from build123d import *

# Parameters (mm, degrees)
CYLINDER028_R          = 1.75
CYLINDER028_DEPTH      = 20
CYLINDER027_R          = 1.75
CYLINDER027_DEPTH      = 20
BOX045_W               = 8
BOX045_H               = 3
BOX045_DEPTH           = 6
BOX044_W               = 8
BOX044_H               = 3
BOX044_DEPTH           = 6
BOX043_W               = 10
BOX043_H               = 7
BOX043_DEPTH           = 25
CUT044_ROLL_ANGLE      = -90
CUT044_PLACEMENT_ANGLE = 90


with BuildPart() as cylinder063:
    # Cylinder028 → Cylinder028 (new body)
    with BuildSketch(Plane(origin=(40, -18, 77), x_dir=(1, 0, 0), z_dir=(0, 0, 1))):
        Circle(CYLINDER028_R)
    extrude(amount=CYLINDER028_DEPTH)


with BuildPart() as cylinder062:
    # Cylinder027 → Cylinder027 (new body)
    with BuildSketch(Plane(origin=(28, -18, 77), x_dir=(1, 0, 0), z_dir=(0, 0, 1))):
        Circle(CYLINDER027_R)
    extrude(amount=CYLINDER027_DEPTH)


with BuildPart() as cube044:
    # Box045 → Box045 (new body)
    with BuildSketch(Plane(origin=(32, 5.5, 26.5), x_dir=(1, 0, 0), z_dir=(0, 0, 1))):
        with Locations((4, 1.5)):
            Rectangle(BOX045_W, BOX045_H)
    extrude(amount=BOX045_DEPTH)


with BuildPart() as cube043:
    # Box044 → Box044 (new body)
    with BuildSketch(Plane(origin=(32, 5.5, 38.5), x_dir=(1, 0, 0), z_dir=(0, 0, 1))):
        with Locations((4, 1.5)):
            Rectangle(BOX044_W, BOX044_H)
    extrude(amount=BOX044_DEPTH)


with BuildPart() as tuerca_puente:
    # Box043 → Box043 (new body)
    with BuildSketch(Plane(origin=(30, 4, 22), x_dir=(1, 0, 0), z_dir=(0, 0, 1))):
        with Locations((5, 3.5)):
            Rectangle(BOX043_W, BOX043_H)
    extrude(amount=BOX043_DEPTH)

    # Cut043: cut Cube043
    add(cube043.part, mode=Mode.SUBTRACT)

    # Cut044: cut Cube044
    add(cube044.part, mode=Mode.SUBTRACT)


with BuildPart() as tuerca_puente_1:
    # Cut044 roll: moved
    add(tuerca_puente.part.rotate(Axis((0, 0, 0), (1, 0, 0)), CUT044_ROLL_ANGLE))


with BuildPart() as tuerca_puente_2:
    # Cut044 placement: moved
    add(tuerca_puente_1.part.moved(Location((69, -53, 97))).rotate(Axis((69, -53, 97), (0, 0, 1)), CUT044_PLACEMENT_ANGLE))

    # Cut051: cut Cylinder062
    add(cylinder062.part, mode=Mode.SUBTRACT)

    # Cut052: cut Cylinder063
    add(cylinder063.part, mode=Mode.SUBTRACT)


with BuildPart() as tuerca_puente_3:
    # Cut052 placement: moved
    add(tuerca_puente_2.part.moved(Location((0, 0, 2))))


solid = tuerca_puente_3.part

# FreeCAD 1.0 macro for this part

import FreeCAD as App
import Part
import Sketcher
from FreeCAD import Vector


def add_polygon(sketch, points):
    """Adds a closed chain of lines whose ends are joined by coincident constraints."""
    first, n = sketch.GeometryCount, len(points)
    for a, b in zip(points, points[1:] + points[:1]):
        sketch.addGeometry(Part.LineSegment(App.Vector(*a, 0), App.Vector(*b, 0)), False)
    for i in range(n):
        sketch.addConstraint(Sketcher.Constraint("Coincident", first + i, 2, first + (i + 1) % n, 1))

doc = App.newDocument("Part")
body = doc.addObject("PartDesign::Body", "Body")

# Sketch on XY plane
sketch1 = doc.addObject("Sketcher::SketchObject", "Sketch")
body.addObject(sketch1)
sketch1.AttachmentSupport = (doc.XY_Plane, [""])
sketch1.MapMode = "FlatFace"
sketch1.AttachmentOffset = App.Placement(Vector(0, 0, 77), App.Rotation())
sketch1.addGeometry(Part.Circle(Vector(40, -18, 0), Vector(0, 0, 1), 1.8), False)
sketch1.addConstraint(Sketcher.Constraint("Diameter", 0, 3.5))
sketch1.addConstraint(Sketcher.Constraint("DistanceX", -1, 1, 0, 3, 40.0))
sketch1.addConstraint(Sketcher.Constraint("DistanceY", 0, 3, -1, 1, 18.0))
pad1 = doc.addObject("PartDesign::Pad", "Pad")
body.addObject(pad1)
pad1.Profile = sketch1
pad1.Length = 20
body2 = doc.addObject("PartDesign::Body", "Body001")

# Sketch on XY plane
sketch2 = doc.addObject("Sketcher::SketchObject", "Sketch001")
body2.addObject(sketch2)
sketch2.AttachmentSupport = (doc.getObject("XY_Plane001"), [""])
sketch2.MapMode = "FlatFace"
sketch2.AttachmentOffset = App.Placement(Vector(0, 0, 77), App.Rotation())
sketch2.addGeometry(Part.Circle(Vector(28, -18, 0), Vector(0, 0, 1), 1.8), False)
sketch2.addConstraint(Sketcher.Constraint("Diameter", 0, 3.5))
sketch2.addConstraint(Sketcher.Constraint("DistanceX", -1, 1, 0, 3, 28.0))
sketch2.addConstraint(Sketcher.Constraint("DistanceY", 0, 3, -1, 1, 18.0))
pad2 = doc.addObject("PartDesign::Pad", "Pad001")
body2.addObject(pad2)
pad2.Profile = sketch2
pad2.Length = 20
body3 = doc.addObject("PartDesign::Body", "Body002")

# Sketch on XY plane
sketch3 = doc.addObject("Sketcher::SketchObject", "Sketch002")
body3.addObject(sketch3)
sketch3.AttachmentSupport = (doc.getObject("XY_Plane002"), [""])
sketch3.MapMode = "FlatFace"
sketch3.AttachmentOffset = App.Placement(Vector(0, 0, 26.5), App.Rotation())
add_polygon(sketch3, [(32, 8.5), (32, 5.5), (40, 5.5), (40, 8.5)])  # lines 0-3
sketch3.addConstraint(Sketcher.Constraint("Vertical", 0))
sketch3.addConstraint(Sketcher.Constraint("Horizontal", 1))
sketch3.addConstraint(Sketcher.Constraint("Vertical", 2))
sketch3.addConstraint(Sketcher.Constraint("Horizontal", 3))
sketch3.addConstraint(Sketcher.Constraint("DistanceX", 1, 1, 1, 2, 8.0))
sketch3.addConstraint(Sketcher.Constraint("DistanceY", 0, 2, 0, 1, 3.0))
sketch3.addConstraint(Sketcher.Constraint("DistanceX", -1, 1, 0, 2, 32.0))
sketch3.addConstraint(Sketcher.Constraint("DistanceY", -1, 1, 0, 2, 5.5))
pad3 = doc.addObject("PartDesign::Pad", "Pad002")
body3.addObject(pad3)
pad3.Profile = sketch3
pad3.Length = 6
body4 = doc.addObject("PartDesign::Body", "Body003")

# Sketch on XY plane
sketch4 = doc.addObject("Sketcher::SketchObject", "Sketch003")
body4.addObject(sketch4)
sketch4.AttachmentSupport = (doc.getObject("XY_Plane003"), [""])
sketch4.MapMode = "FlatFace"
sketch4.AttachmentOffset = App.Placement(Vector(0, 0, 38.5), App.Rotation())
add_polygon(sketch4, [(32, 8.5), (32, 5.5), (40, 5.5), (40, 8.5)])  # lines 0-3
sketch4.addConstraint(Sketcher.Constraint("Vertical", 0))
sketch4.addConstraint(Sketcher.Constraint("Horizontal", 1))
sketch4.addConstraint(Sketcher.Constraint("Vertical", 2))
sketch4.addConstraint(Sketcher.Constraint("Horizontal", 3))
sketch4.addConstraint(Sketcher.Constraint("DistanceX", 1, 1, 1, 2, 8.0))
sketch4.addConstraint(Sketcher.Constraint("DistanceY", 0, 2, 0, 1, 3.0))
sketch4.addConstraint(Sketcher.Constraint("DistanceX", -1, 1, 0, 2, 32.0))
sketch4.addConstraint(Sketcher.Constraint("DistanceY", -1, 1, 0, 2, 5.5))
pad4 = doc.addObject("PartDesign::Pad", "Pad003")
body4.addObject(pad4)
pad4.Profile = sketch4
pad4.Length = 6
body5 = doc.addObject("PartDesign::Body", "Body004")

# Sketch on XY plane
sketch5 = doc.addObject("Sketcher::SketchObject", "Sketch004")
body5.addObject(sketch5)
sketch5.AttachmentSupport = (doc.getObject("XY_Plane004"), [""])
sketch5.MapMode = "FlatFace"
sketch5.AttachmentOffset = App.Placement(Vector(0, 0, 22), App.Rotation())
add_polygon(sketch5, [(30, 11), (30, 4), (40, 4), (40, 11)])  # lines 0-3
sketch5.addConstraint(Sketcher.Constraint("Vertical", 0))
sketch5.addConstraint(Sketcher.Constraint("Horizontal", 1))
sketch5.addConstraint(Sketcher.Constraint("Vertical", 2))
sketch5.addConstraint(Sketcher.Constraint("Horizontal", 3))
sketch5.addConstraint(Sketcher.Constraint("DistanceX", 1, 1, 1, 2, 10.0))
sketch5.addConstraint(Sketcher.Constraint("DistanceY", 0, 2, 0, 1, 7.0))
sketch5.addConstraint(Sketcher.Constraint("DistanceX", -1, 1, 0, 2, 30.0))
sketch5.addConstraint(Sketcher.Constraint("DistanceY", -1, 1, 0, 2, 4.0))
pad5 = doc.addObject("PartDesign::Pad", "Pad004")
body5.addObject(pad5)
pad5.Profile = sketch5
pad5.Length = 25
doc.recompute()

boolean = doc.addObject("PartDesign::Boolean", "Boolean")
body5.addObject(boolean)
boolean.Type = "Cut"
boolean.addObjects([body4])
doc.recompute()

boolean2 = doc.addObject("PartDesign::Boolean", "Boolean001")
body5.addObject(boolean2)
boolean2.Type = "Cut"
boolean2.addObjects([body3])
body6 = doc.addObject("PartDesign::Body", "Body005")
doc.recompute()

body5.Placement = App.Placement(Vector(0, 0, 0), App.Rotation(Vector(1, 0, 0), 270))
boolean3 = doc.addObject("PartDesign::Boolean", "Boolean002")
body6.addObject(boolean3)
boolean3.Type = "Fuse"
boolean3.addObjects([body5])
body7 = doc.addObject("PartDesign::Body", "Body006")
doc.recompute()

body6.Placement = App.Placement(Vector(69, -53, 97), App.Rotation(Vector(0, 0, 1), 90))
boolean4 = doc.addObject("PartDesign::Boolean", "Boolean003")
body7.addObject(boolean4)
boolean4.Type = "Fuse"
boolean4.addObjects([body6])
doc.recompute()

boolean5 = doc.addObject("PartDesign::Boolean", "Boolean004")
body7.addObject(boolean5)
boolean5.Type = "Cut"
boolean5.addObjects([body2])
doc.recompute()

boolean6 = doc.addObject("PartDesign::Boolean", "Boolean005")
body7.addObject(boolean6)
boolean6.Type = "Cut"
boolean6.addObjects([body])
body8 = doc.addObject("PartDesign::Body", "Body007")
doc.recompute()

body7.Placement = App.Placement(Vector(0, 0, 2), App.Rotation(Vector(0, 0, 1), 0))
boolean7 = doc.addObject("PartDesign::Boolean", "Boolean006")
body8.addObject(boolean7)
boolean7.Type = "Fuse"
boolean7.addObjects([body7])

doc.recompute()
